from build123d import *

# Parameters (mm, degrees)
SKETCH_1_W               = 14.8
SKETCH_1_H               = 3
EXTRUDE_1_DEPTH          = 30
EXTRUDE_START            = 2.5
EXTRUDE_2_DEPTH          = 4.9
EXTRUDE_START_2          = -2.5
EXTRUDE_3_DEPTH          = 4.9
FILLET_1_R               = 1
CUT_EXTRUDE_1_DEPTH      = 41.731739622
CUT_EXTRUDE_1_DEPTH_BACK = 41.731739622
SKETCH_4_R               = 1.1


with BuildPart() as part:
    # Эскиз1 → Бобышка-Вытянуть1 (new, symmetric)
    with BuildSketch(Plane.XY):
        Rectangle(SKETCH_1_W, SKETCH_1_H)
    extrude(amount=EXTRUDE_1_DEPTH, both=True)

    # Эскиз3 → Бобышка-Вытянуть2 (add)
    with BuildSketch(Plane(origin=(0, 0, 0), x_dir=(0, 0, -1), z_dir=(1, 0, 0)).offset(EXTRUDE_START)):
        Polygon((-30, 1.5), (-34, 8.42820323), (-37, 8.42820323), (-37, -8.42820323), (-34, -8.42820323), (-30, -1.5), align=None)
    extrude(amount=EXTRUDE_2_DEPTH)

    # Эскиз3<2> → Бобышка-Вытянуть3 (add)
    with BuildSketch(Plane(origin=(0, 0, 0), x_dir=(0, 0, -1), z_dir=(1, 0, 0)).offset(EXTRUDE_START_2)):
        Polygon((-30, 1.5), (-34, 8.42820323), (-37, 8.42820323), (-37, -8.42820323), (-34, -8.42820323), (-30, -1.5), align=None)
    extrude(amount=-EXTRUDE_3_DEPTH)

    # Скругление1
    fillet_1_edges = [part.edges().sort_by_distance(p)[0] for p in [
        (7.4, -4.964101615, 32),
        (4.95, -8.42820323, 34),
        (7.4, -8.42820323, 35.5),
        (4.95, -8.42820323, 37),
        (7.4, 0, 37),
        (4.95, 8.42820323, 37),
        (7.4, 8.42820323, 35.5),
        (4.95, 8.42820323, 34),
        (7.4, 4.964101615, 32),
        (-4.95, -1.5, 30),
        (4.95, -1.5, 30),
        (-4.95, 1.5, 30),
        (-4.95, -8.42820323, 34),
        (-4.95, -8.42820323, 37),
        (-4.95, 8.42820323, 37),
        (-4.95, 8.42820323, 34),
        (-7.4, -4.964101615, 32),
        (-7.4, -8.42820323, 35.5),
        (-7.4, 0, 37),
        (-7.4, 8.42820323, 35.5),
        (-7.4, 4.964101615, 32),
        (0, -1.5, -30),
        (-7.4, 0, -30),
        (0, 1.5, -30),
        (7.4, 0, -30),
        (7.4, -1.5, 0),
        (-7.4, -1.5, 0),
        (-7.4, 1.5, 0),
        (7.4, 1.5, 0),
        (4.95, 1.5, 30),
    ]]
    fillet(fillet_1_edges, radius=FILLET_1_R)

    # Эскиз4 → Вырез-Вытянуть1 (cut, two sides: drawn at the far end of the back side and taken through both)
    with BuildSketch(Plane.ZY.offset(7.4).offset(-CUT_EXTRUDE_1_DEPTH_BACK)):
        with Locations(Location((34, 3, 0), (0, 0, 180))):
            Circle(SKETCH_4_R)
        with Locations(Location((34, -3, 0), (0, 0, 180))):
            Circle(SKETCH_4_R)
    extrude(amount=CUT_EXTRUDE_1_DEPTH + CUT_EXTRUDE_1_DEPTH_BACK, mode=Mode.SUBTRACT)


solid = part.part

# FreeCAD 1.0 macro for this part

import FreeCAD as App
import Part
import Sketcher
from FreeCAD import Vector
Q = App.Units.Quantity


def edges_at(feature, points):
    """Names of the edges that pass closest to the given points."""
    edges = feature.Shape.Edges
    near = lambda p: min(range(len(edges)), key=lambda i: edges[i].distToShape(Part.Vertex(*p))[0])
    return sorted({f"Edge{near(p) + 1}" for p in points})


def add_polygon(sketch, points):
    """Adds a closed chain of lines whose ends are joined by coincident constraints."""
    first, n = sketch.GeometryCount, len(points)
    for a, b in zip(points, points[1:] + points[:1]):
        sketch.addGeometry(Part.LineSegment(App.Vector(*a, 0), App.Vector(*b, 0)), False)
    for i in range(n):
        sketch.addConstraint(Sketcher.Constraint("Coincident", first + i, 2, first + (i + 1) % n, 1))

doc = App.newDocument("Part")
body = doc.addObject("PartDesign::Body", "Body")

# Sketch on XY plane
sketch1 = body.newObject("Sketcher::SketchObject", "Sketch")
sketch1.AttachmentSupport = (doc.getObject("XY_Plane"), [""])
sketch1.MapMode = "FlatFace"
add_polygon(sketch1, [(-7.4, 1.5), (-7.4, -1.5), (7.4, -1.5), (7.4, 1.5)])  # lines 0-3
sketch1.addConstraint([
    Sketcher.Constraint("Vertical", 0),
    Sketcher.Constraint("Horizontal", 1),
    Sketcher.Constraint("Vertical", 2),
    Sketcher.Constraint("Horizontal", 3),
    Sketcher.Constraint("Symmetric", 0, 2, 2, 2, -1, 1),
    Sketcher.Constraint("DistanceY", 0, 2, 0, 1, Q("3 mm")),
    Sketcher.Constraint("DistanceX", 1, 1, 1, 2, Q("14.8 mm")),
])
pad1 = body.newObject("PartDesign::Pad", "Pad")
pad1.Profile = sketch1
pad1.Length = 60
pad1.Midplane = True

# Sketch on YZ plane
sketch2 = body.newObject("Sketcher::SketchObject", "Sketch001")
sketch2.AttachmentSupport = (doc.getObject("YZ_Plane"), [""])
sketch2.MapMode = "FlatFace"
sketch2.AttachmentOffset = App.Placement(Vector(0, 0, 2.5), App.Rotation())
add_polygon(sketch2, [(1.5, 30), (8.428203, 34), (8.428203, 37), (-8.428203, 37), (-8.428203, 34), (-1.5, 30)])  # lines 0-5
sketch2.addConstraint([
    Sketcher.Constraint("Vertical", 1),
    Sketcher.Constraint("Horizontal", 2),
    Sketcher.Constraint("Vertical", 3),
    Sketcher.Constraint("Horizontal", 5),
    Sketcher.Constraint("Symmetric", 0, 2, 3, 2, -2),
    Sketcher.Constraint("Equal", 5, 1),
    Sketcher.Constraint("Equal", 0, 4),
    Sketcher.Constraint("DistanceX", 5, 1, 5, 2, Q("3 mm")),
    Sketcher.Constraint("Angle", 0, Q("30 deg")),
    Sketcher.Constraint("Distance", 0, Q("8 mm")),
    Sketcher.Constraint("DistanceY", -1, 1, 0, 2, Q("34 mm")),
])
pad2 = body.newObject("PartDesign::Pad", "Pad001")
pad2.Profile = sketch2
pad2.Length = 4.9

# Sketch on YZ plane
sketch3 = body.newObject("Sketcher::SketchObject", "Sketch002")
sketch3.AttachmentSupport = (doc.getObject("YZ_Plane"), [""])
sketch3.MapMode = "FlatFace"
sketch3.AttachmentOffset = App.Placement(Vector(0, 0, -2.5), App.Rotation())
add_polygon(sketch3, [(1.5, 30), (8.428203, 34), (8.428203, 37), (-8.428203, 37), (-8.428203, 34), (-1.5, 30)])  # lines 0-5
sketch3.addConstraint([
    Sketcher.Constraint("Vertical", 1),
    Sketcher.Constraint("Horizontal", 2),
    Sketcher.Constraint("Vertical", 3),
    Sketcher.Constraint("Horizontal", 5),
    Sketcher.Constraint("Symmetric", 0, 2, 3, 2, -2),
    Sketcher.Constraint("Equal", 5, 1),
    Sketcher.Constraint("Equal", 0, 4),
    Sketcher.Constraint("DistanceX", 5, 1, 5, 2, Q("3 mm")),
    Sketcher.Constraint("Angle", 0, Q("30 deg")),
    Sketcher.Constraint("Distance", 0, Q("8 mm")),
    Sketcher.Constraint("DistanceY", -1, 1, 0, 2, Q("34 mm")),
])
pad3 = body.newObject("PartDesign::Pad", "Pad002")
pad3.Profile = sketch3
pad3.Length = 4.9
pad3.Reversed = True
doc.recompute()

fillet = body.newObject("PartDesign::Fillet", "Fillet")
fillet.Base = (pad3, edges_at(pad3, [
    (7.4, -4.964, 32),
    (4.95, -8.428, 34),
    (7.4, -8.428, 35.5),
    (4.95, -8.428, 37),
    (7.4, 0, 37),
    (4.95, 8.428, 37),
    (7.4, 8.428, 35.5),
    (4.95, 8.428, 34),
    (7.4, 4.964, 32),
    (-4.95, -1.5, 30),
    (4.95, -1.5, 30),
    (-4.95, 1.5, 30),
    (-4.95, -8.428, 34),
    (-4.95, -8.428, 37),
    (-4.95, 8.428, 37),
    (-4.95, 8.428, 34),
    (-7.4, -4.964, 32),
    (-7.4, -8.428, 35.5),
    (-7.4, 0, 37),
    (-7.4, 8.428, 35.5),
    (-7.4, 4.964, 32),
    (0, -1.5, -30),
    (-7.4, 0, -30),
    (0, 1.5, -30),
    (7.4, 0, -30),
    (7.4, -1.5, 0),
    (-7.4, -1.5, 0),
    (-7.4, 1.5, 0),
    (7.4, 1.5, 0),
    (4.95, 1.5, 30),
]))
fillet.Radius = 1

# Sketch on YZ plane
sketch4 = body.newObject("Sketcher::SketchObject", "Sketch003")
sketch4.AttachmentSupport = (doc.getObject("YZ_Plane"), [""])
sketch4.MapMode = "FlatFace"
sketch4.AttachmentOffset = App.Placement(Vector(0, 0, -7.4), App.Rotation())
sketch4.addGeometry([
    Part.Circle(Vector(3, 34, 0), Vector(0, 0, 1), 1.1),
    Part.Circle(Vector(-3, 34, 0), Vector(0, 0, 1), 1.1),
], False)
sketch4.addConstraint([
    Sketcher.Constraint("Equal", 0, 1),
    Sketcher.Constraint("Symmetric", 0, 3, 1, 3, -2),
    Sketcher.Constraint("Diameter", 0, Q("2.2 mm")),
    Sketcher.Constraint("DistanceX", -1, 1, 0, 3, Q("3 mm")),
    Sketcher.Constraint("DistanceY", -1, 1, 0, 3, Q("34 mm")),
])
pocket1 = body.newObject("PartDesign::Pocket", "Pocket")
pocket1.Profile = sketch4
pocket1.Type = "ThroughAll"
pocket1.Midplane = True

doc.recompute()
